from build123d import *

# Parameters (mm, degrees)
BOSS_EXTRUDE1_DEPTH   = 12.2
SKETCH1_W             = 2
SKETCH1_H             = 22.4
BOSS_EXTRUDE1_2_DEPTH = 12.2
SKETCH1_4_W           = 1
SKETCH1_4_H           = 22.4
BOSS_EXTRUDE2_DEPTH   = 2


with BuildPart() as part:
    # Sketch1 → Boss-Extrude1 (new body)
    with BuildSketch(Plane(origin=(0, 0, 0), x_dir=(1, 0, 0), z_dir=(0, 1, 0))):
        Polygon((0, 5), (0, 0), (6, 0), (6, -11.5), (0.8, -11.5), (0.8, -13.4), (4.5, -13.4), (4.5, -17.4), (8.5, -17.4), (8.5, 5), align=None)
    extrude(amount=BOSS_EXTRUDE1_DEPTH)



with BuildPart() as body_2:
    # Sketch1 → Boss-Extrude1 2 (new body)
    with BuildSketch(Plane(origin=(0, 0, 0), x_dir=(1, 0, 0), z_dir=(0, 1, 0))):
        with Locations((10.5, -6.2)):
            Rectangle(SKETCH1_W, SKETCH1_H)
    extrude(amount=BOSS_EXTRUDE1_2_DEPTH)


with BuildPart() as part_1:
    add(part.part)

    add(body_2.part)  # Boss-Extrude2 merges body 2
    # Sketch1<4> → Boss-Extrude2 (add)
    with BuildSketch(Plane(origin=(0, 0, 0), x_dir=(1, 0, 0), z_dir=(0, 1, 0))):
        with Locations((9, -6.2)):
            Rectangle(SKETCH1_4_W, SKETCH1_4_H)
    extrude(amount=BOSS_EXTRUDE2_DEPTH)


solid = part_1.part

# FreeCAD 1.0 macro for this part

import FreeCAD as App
import Part
import Sketcher
from FreeCAD import Vector
Q = App.Units.Quantity

doc = App.newDocument("Part")
body = doc.addObject("PartDesign::Body", "Body")

# Sketch on XZ plane
sketch1 = doc.addObject("Sketcher::SketchObject", "Sketch")
body.addObject(sketch1)
sketch1.AttachmentSupport = (doc.XZ_Plane, [""])
sketch1.MapMode = "FlatFace"
sketch1.addGeometry([
    Part.LineSegment(Vector(0, -5, 0), Vector(0, 0, 0)),  # 0
    Part.LineSegment(Vector(0, 0, 0), Vector(6, 0, 0)),  # 1
    Part.LineSegment(Vector(6, 0, 0), Vector(6, 11.5, 0)),  # 2
    Part.LineSegment(Vector(6, 11.5, 0), Vector(0.8, 11.5, 0)),  # 3
    Part.LineSegment(Vector(0.8, 11.5, 0), Vector(0.8, 13.4, 0)),  # 4
    Part.LineSegment(Vector(0.8, 13.4, 0), Vector(4.5, 13.4, 0)),  # 5
    Part.LineSegment(Vector(4.5, 13.4, 0), Vector(4.5, 17.4, 0)),  # 6
    Part.LineSegment(Vector(4.5, 17.4, 0), Vector(8.5, 17.4, 0)),  # 7
    Part.LineSegment(Vector(8.5, 17.4, 0), Vector(8.5, -5, 0)),  # 8
    Part.LineSegment(Vector(8.5, -5, 0), Vector(0, -5, 0)),  # 9
], False)
sketch1.addConstraint([
    Sketcher.Constraint("Coincident", 0, 2, 1, 1),
    Sketcher.Constraint("Coincident", 1, 2, 2, 1),
    Sketcher.Constraint("Coincident", 2, 2, 3, 1),
    Sketcher.Constraint("Coincident", 3, 2, 4, 1),
    Sketcher.Constraint("Coincident", 4, 2, 5, 1),
    Sketcher.Constraint("Coincident", 5, 2, 6, 1),
    Sketcher.Constraint("Coincident", 6, 2, 7, 1),
    Sketcher.Constraint("Coincident", 7, 2, 8, 1),
    Sketcher.Constraint("Coincident", 8, 2, 9, 1),
    Sketcher.Constraint("Coincident", 9, 2, 0, 1),
    Sketcher.Constraint("Vertical", 0),
    Sketcher.Constraint("Horizontal", 1),
    Sketcher.Constraint("Vertical", 2),
    Sketcher.Constraint("Horizontal", 3),
    Sketcher.Constraint("Vertical", 4),
    Sketcher.Constraint("Horizontal", 5),
    Sketcher.Constraint("Vertical", 6),
    Sketcher.Constraint("Horizontal", 7),
    Sketcher.Constraint("Vertical", 8),
    Sketcher.Constraint("Horizontal", 9),
    Sketcher.Constraint("Coincident", 0, 2, -1, 1),
    Sketcher.Constraint("Equal", 7, 6),
    Sketcher.Constraint("DistanceX", 1, 1, 1, 2, Q("6 mm")),
    Sketcher.Constraint("DistanceX", 7, 1, 7, 2, Q("4 mm")),
    Sketcher.Constraint("DistanceY", 0, 1, 0, 2, Q("5 mm")),
    Sketcher.Constraint("DistanceX", 3, 2, 3, 1, Q("5.2 mm")),
    Sketcher.Constraint("DistanceX", 5, 1, 5, 2, Q("3.7 mm")),
    Sketcher.Constraint("DistanceY", 2, 1, 2, 2, Q("11.5 mm")),
    Sketcher.Constraint("DistanceY", 4, 1, 4, 2, Q("1.9 mm")),
])
pad1 = doc.addObject("PartDesign::Pad", "Pad")
body.addObject(pad1)
pad1.Profile = sketch1
pad1.Length = 12.2
pad1.Reversed = True
body2 = doc.addObject("PartDesign::Body", "Body001")

# Sketch on XZ plane
sketch2 = doc.addObject("Sketcher::SketchObject", "Sketch001")
body2.addObject(sketch2)
sketch2.AttachmentSupport = (doc.getObject("XZ_Plane001"), [""])
sketch2.MapMode = "FlatFace"
sketch2.addGeometry([
    Part.LineSegment(Vector(9.5, -5, 0), Vector(9.5, 17.4, 0)),
    Part.LineSegment(Vector(9.5, 17.4, 0), Vector(11.5, 17.4, 0)),
    Part.LineSegment(Vector(11.5, 17.4, 0), Vector(11.5, -5, 0)),
    Part.LineSegment(Vector(11.5, -5, 0), Vector(9.5, -5, 0)),
], False)
sketch2.addConstraint([
    Sketcher.Constraint("Coincident", 0, 2, 1, 1),
    Sketcher.Constraint("Coincident", 1, 2, 2, 1),
    Sketcher.Constraint("Coincident", 2, 2, 3, 1),
    Sketcher.Constraint("Coincident", 3, 2, 0, 1),
    Sketcher.Constraint("Vertical", 0),
    Sketcher.Constraint("Horizontal", 1),
    Sketcher.Constraint("Vertical", 2),
    Sketcher.Constraint("Horizontal", 3),
    Sketcher.Constraint("DistanceX", 1, 1, 1, 2, Q("2 mm")),
    Sketcher.Constraint("DistanceY", 0, 1, 0, 2, Q("22.4 mm")),
    Sketcher.Constraint("DistanceY", 2, 2, -1, 1, Q("5 mm")),
    Sketcher.Constraint("DistanceX", -1, 1, 0, 2, Q("9.5 mm")),
])
pad2 = doc.addObject("PartDesign::Pad", "Pad001")
body2.addObject(pad2)
pad2.Profile = sketch2
pad2.Length = 12.2
pad2.Reversed = True
body.AllowCompound = True
doc.recompute()

boolean = doc.addObject("PartDesign::Boolean", "Boolean")
body.addObject(boolean)
boolean.Type = "Fuse"
boolean.addObjects([body2])

# Sketch on XZ plane
sketch3 = doc.addObject("Sketcher::SketchObject", "Sketch002")
body.addObject(sketch3)
sketch3.AttachmentSupport = (doc.XZ_Plane, [""])
sketch3.MapMode = "FlatFace"
sketch3.addGeometry([
    Part.LineSegment(Vector(8.5, -5, 0), Vector(8.5, 17.4, 0)),
    Part.LineSegment(Vector(8.5, 17.4, 0), Vector(9.5, 17.4, 0)),
    Part.LineSegment(Vector(9.5, 17.4, 0), Vector(9.5, -5, 0)),
    Part.LineSegment(Vector(9.5, -5, 0), Vector(8.5, -5, 0)),
], False)
sketch3.addConstraint([
    Sketcher.Constraint("Coincident", 0, 2, 1, 1),
    Sketcher.Constraint("Coincident", 1, 2, 2, 1),
    Sketcher.Constraint("Coincident", 2, 2, 3, 1),
    Sketcher.Constraint("Coincident", 3, 2, 0, 1),
    Sketcher.Constraint("Vertical", 0),
    Sketcher.Constraint("Horizontal", 1),
    Sketcher.Constraint("Vertical", 2),
    Sketcher.Constraint("Horizontal", 3),
    Sketcher.Constraint("DistanceX", 1, 1, 1, 2, Q("1 mm")),
    Sketcher.Constraint("DistanceY", 0, 1, 0, 2, Q("22.4 mm")),
    Sketcher.Constraint("DistanceY", 2, 2, -1, 1, Q("5 mm")),
    Sketcher.Constraint("DistanceX", -1, 1, 0, 2, Q("8.5 mm")),
])
pad3 = doc.addObject("PartDesign::Pad", "Pad002")
body.addObject(pad3)
pad3.Profile = sketch3
pad3.Length = 2
pad3.Reversed = True

doc.recompute()
